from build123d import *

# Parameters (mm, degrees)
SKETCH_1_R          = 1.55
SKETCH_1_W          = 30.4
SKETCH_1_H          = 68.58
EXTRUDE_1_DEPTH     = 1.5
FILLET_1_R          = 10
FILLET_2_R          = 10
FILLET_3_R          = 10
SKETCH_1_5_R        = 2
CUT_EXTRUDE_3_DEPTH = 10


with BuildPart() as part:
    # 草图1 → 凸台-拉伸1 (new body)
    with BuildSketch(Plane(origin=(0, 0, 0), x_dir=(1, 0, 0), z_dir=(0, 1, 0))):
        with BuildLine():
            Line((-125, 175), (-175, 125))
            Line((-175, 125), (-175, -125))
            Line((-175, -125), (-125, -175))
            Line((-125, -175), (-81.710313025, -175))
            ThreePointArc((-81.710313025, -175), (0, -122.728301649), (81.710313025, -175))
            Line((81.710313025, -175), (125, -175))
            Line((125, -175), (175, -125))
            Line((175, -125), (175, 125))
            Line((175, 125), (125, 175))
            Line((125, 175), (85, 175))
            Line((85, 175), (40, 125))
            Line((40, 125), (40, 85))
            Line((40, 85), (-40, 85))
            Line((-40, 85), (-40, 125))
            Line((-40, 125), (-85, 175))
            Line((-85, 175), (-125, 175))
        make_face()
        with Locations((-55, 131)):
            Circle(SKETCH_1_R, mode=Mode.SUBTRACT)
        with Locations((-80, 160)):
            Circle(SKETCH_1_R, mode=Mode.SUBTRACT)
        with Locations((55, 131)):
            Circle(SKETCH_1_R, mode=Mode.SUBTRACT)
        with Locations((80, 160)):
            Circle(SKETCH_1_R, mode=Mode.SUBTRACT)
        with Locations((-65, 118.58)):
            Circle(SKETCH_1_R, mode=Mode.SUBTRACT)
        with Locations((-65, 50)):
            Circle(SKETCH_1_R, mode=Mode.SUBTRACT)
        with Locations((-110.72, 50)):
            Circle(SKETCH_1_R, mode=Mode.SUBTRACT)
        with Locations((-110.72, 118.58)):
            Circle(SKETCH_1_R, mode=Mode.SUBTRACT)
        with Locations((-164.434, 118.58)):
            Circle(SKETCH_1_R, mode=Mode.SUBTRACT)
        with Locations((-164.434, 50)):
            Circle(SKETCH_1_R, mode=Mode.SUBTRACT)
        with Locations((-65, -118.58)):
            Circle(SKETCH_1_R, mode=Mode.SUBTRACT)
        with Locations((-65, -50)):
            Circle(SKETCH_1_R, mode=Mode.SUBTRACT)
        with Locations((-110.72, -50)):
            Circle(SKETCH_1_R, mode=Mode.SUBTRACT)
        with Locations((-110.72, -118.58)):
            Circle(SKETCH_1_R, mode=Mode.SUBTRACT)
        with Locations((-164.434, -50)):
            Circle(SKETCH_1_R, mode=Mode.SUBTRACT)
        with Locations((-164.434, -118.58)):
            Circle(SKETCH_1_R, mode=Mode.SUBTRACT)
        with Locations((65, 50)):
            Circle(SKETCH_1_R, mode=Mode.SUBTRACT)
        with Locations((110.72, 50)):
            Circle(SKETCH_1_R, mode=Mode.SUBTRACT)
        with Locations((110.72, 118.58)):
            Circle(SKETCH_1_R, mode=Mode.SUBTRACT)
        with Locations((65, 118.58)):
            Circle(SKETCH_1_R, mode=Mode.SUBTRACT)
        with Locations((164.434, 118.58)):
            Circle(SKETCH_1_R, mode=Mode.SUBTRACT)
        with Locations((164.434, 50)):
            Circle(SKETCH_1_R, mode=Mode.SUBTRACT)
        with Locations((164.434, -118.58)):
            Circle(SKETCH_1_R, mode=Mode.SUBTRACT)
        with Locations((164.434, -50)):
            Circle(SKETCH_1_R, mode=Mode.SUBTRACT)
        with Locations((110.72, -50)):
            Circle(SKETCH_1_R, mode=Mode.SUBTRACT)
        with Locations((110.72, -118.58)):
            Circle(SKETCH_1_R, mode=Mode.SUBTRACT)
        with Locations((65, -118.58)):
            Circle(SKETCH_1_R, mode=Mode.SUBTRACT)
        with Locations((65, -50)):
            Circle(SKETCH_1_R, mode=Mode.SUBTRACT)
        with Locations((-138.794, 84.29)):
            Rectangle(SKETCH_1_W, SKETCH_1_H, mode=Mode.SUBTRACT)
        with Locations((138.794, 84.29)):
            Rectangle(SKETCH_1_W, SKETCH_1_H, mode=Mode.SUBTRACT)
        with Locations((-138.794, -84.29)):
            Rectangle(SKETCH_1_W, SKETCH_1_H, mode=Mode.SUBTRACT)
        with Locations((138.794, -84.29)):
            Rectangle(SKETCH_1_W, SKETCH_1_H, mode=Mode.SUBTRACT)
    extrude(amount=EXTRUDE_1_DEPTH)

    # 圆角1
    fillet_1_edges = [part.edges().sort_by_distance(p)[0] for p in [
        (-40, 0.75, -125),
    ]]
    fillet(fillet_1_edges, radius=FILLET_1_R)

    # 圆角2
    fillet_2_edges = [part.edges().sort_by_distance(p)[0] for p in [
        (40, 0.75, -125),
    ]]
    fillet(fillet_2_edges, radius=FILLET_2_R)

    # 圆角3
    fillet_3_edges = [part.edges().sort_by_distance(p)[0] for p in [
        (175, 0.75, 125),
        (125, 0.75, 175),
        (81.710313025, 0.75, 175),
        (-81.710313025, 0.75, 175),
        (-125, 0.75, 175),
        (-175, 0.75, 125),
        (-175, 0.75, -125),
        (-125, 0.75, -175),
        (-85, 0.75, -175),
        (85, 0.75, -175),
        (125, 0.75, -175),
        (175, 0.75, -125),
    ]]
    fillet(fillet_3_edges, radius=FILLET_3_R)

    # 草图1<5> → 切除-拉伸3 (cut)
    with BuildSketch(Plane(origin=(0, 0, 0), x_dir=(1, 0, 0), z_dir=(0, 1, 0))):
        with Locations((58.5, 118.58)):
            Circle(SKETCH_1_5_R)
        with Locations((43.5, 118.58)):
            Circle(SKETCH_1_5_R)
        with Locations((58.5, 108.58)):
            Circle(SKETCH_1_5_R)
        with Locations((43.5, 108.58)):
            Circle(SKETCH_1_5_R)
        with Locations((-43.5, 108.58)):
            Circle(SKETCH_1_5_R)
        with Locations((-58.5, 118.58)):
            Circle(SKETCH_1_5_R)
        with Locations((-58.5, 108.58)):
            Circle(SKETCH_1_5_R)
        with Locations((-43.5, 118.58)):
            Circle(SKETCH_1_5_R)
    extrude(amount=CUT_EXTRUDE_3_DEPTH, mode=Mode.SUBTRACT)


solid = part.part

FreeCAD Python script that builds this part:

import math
import FreeCAD as App
import Part
import Sketcher

V = App.Vector
Q = App.Units.Quantity


def edges_at(feature, points):
    """Names of the edges that pass closest to the given points."""
    edges = feature.Shape.Edges
    near = lambda p: min(range(len(edges)), key=lambda i: edges[i].distToShape(Part.Vertex(*p))[0])
    return sorted({f"Edge{near(p) + 1}" for p in points})


def add_polygon(sketch, points):
    """Adds a closed chain of lines whose ends are joined by coincident constraints."""
    first, n = sketch.GeometryCount, len(points)
    for a, b in zip(points, points[1:] + points[:1]):
        sketch.addGeometry(Part.LineSegment(App.Vector(*a, 0), App.Vector(*b, 0)), False)
    for i in range(n):
        sketch.addConstraint(Sketcher.Constraint("Coincident", first + i, 2, first + (i + 1) % n, 1))

doc = App.newDocument("Part")
params = doc.addObject("Spreadsheet::Sheet", "Params")
for row, (alias, value) in enumerate([
    ("sketch1_radius", "90 mm"),
    ("sketch1_diameter", "3.1 mm"),
    ("sketch1_width", "40 mm"),
    ("sketch1_width2", "80 mm"),
    ("sketch1_height", "250 mm"),
    ("pad1_length", "1.5 mm"),
    ("fillet_radius", "10 mm"),
    ("fillet2_radius", "10 mm"),
    ("fillet3_radius", "10 mm"),
    ("sketch2_diameter", "4 mm"),
    ("pocket1_length", "10 mm"),
], start=1):
    params.set(f"A{row}", alias)
    params.set(f"B{row}", "=" + value)
    params.setAlias(f"B{row}", alias)

body = doc.addObject("PartDesign::Body", "Body")

sketch1 = body.newObject("Sketcher::SketchObject", "Sketch")
sketch1.AttachmentSupport = (doc.getObject("XZ_Plane"), [""])
sketch1.MapMode = "FlatFace"
sketch1.addGeometry(Part.LineSegment(V(-125, -175, 0), V(-175, -125, 0)), False)
sketch1.addGeometry(Part.LineSegment(V(-175, -125, 0), V(-175, 125, 0)), False)
sketch1.addGeometry(Part.LineSegment(V(-175, 125, 0), V(-125, 175, 0)), False)
sketch1.addGeometry(Part.LineSegment(V(-125, 175, 0), V(-81.7, 175, 0)), False)
sketch1.addGeometry(Part.ArcOfCircle(Part.Circle(V(0, 212.7, 0), V(0, 0, 1), 90), math.radians(-155), math.radians(-25)), False)
sketch1.addGeometry(Part.LineSegment(V(81.7, 175, 0), V(125, 175, 0)), False)
sketch1.addGeometry(Part.LineSegment(V(125, 175, 0), V(175, 125, 0)), False)
sketch1.addGeometry(Part.LineSegment(V(175, 125, 0), V(175, -125, 0)), False)
sketch1.addGeometry(Part.LineSegment(V(175, -125, 0), V(125, -175, 0)), False)
sketch1.addGeometry(Part.LineSegment(V(125, -175, 0), V(85, -175, 0)), False)
sketch1.addGeometry(Part.LineSegment(V(85, -175, 0), V(40, -125, 0)), False)
sketch1.addGeometry(Part.LineSegment(V(40, -125, 0), V(40, -85, 0)), False)
sketch1.addGeometry(Part.LineSegment(V(40, -85, 0), V(-40, -85, 0)), False)
sketch1.addGeometry(Part.LineSegment(V(-40, -85, 0), V(-40, -125, 0)), False)
sketch1.addGeometry(Part.LineSegment(V(-40, -125, 0), V(-85, -175, 0)), False)
sketch1.addGeometry(Part.LineSegment(V(-85, -175, 0), V(-125, -175, 0)), False)
sketch1.addGeometry(Part.Circle(V(-164.4, 118.6, 0), V(0, 0, 1), 1.6), False)
sketch1.addGeometry(Part.Circle(V(-110.7, 118.6, 0), V(0, 0, 1), 1.6), False)
add_polygon(sketch1, [(-123.6, 118.6), (-154, 118.6), (-154, 50), (-123.6, 50)])
sketch1.addGeometry(Part.Circle(V(-164.4, 50, 0), V(0, 0, 1), 1.6), False)
sketch1.addGeometry(Part.Circle(V(-110.7, 50, 0), V(0, 0, 1), 1.6), False)
sketch1.addGeometry(Part.Circle(V(-65, 118.6, 0), V(0, 0, 1), 1.6), False)
sketch1.addGeometry(Part.Circle(V(-65, 50, 0), V(0, 0, 1), 1.6), False)
sketch1.addGeometry(Part.Circle(V(65, 118.6, 0), V(0, 0, 1), 1.6), False)
sketch1.addGeometry(Part.Circle(V(65, 50, 0), V(0, 0, 1), 1.6), False)
sketch1.addGeometry(Part.Circle(V(110.7, 118.6, 0), V(0, 0, 1), 1.6), False)
sketch1.addGeometry(Part.Circle(V(164.4, 118.6, 0), V(0, 0, 1), 1.6), False)
sketch1.addGeometry(Part.Circle(V(110.7, 50, 0), V(0, 0, 1), 1.6), False)
add_polygon(sketch1, [(154, 118.6), (123.6, 118.6), (123.6, 50), (154, 50)])
sketch1.addGeometry(Part.Circle(V(164.4, 50, 0), V(0, 0, 1), 1.6), False)
sketch1.addGeometry(Part.Circle(V(-164.4, -50, 0), V(0, 0, 1), 1.6), False)
sketch1.addGeometry(Part.Circle(V(-110.7, -50, 0), V(0, 0, 1), 1.6), False)
add_polygon(sketch1, [(-123.6, -50), (-154, -50), (-154, -118.6), (-123.6, -118.6)])
sketch1.addGeometry(Part.Circle(V(-65, -50, 0), V(0, 0, 1), 1.6), False)
sketch1.addGeometry(Part.Circle(V(-164.4, -118.6, 0), V(0, 0, 1), 1.6), False)
sketch1.addGeometry(Part.Circle(V(-110.7, -118.6, 0), V(0, 0, 1), 1.6), False)
sketch1.addGeometry(Part.Circle(V(-65, -118.6, 0), V(0, 0, 1), 1.6), False)
sketch1.addGeometry(Part.Circle(V(-55, -131, 0), V(0, 0, 1), 1.6), False)
sketch1.addGeometry(Part.Circle(V(-80, -160, 0), V(0, 0, 1), 1.6), False)
sketch1.addGeometry(Part.Circle(V(65, -50, 0), V(0, 0, 1), 1.6), False)
sketch1.addGeometry(Part.Circle(V(110.7, -50, 0), V(0, 0, 1), 1.6), False)
sketch1.addGeometry(Part.Circle(V(164.4, -50, 0), V(0, 0, 1), 1.6), False)
add_polygon(sketch1, [(154, -50), (123.6, -50), (123.6, -118.6), (154, -118.6)])
sketch1.addGeometry(Part.Circle(V(65, -118.6, 0), V(0, 0, 1), 1.6), False)
sketch1.addGeometry(Part.Circle(V(55, -131, 0), V(0, 0, 1), 1.6), False)
sketch1.addGeometry(Part.Circle(V(80, -160, 0), V(0, 0, 1), 1.6), False)
sketch1.addGeometry(Part.Circle(V(110.7, -118.6, 0), V(0, 0, 1), 1.6), False)
sketch1.addGeometry(Part.Circle(V(164.4, -118.6, 0), V(0, 0, 1), 1.6), False)
sketch1.addConstraint([
    Sketcher.Constraint("Coincident", 0, 2, 1, 1),
    Sketcher.Constraint("Coincident", 1, 2, 2, 1),
    Sketcher.Constraint("Coincident", 2, 2, 3, 1),
    Sketcher.Constraint("Coincident", 3, 2, 4, 1),
    Sketcher.Constraint("Coincident", 4, 2, 5, 1),
    Sketcher.Constraint("Coincident", 5, 2, 6, 1),
    Sketcher.Constraint("Coincident", 6, 2, 7, 1),
    Sketcher.Constraint("Coincident", 7, 2, 8, 1),
    Sketcher.Constraint("Coincident", 8, 2, 9, 1),
    Sketcher.Constraint("Coincident", 9, 2, 10, 1),
    Sketcher.Constraint("Coincident", 10, 2, 11, 1),
    Sketcher.Constraint("Coincident", 11, 2, 12, 1),
    Sketcher.Constraint("Coincident", 12, 2, 13, 1),
    Sketcher.Constraint("Coincident", 13, 2, 14, 1),
    Sketcher.Constraint("Coincident", 14, 2, 15, 1),
    Sketcher.Constraint("Coincident", 15, 2, 0, 1),
    Sketcher.Constraint("Vertical", 1),
    Sketcher.Constraint("Horizontal", 3),
    Sketcher.Constraint("Horizontal", 5),
    Sketcher.Constraint("Vertical", 7),
    Sketcher.Constraint("Horizontal", 9),
    Sketcher.Constraint("Vertical", 11),
    Sketcher.Constraint("Horizontal", 12),
    Sketcher.Constraint("Vertical", 13),
    Sketcher.Constraint("Horizontal", 15),
    Sketcher.Constraint("Horizontal", 18),
    Sketcher.Constraint("Vertical", 19),
    Sketcher.Constraint("Horizontal", 20),
    Sketcher.Constraint("Vertical", 21),
    Sketcher.Constraint("Horizontal", 31),
    Sketcher.Constraint("Vertical", 32),
    Sketcher.Constraint("Horizontal", 33),
    Sketcher.Constraint("Vertical", 34),
    Sketcher.Constraint("Horizontal", 38),
    Sketcher.Constraint("Vertical", 39),
    Sketcher.Constraint("Horizontal", 40),
    Sketcher.Constraint("Vertical", 41),
    Sketcher.Constraint("Horizontal", 51),
    Sketcher.Constraint("Vertical", 52),
    Sketcher.Constraint("Horizontal", 53),
    Sketcher.Constraint("Vertical", 54),
    Sketcher.Constraint("Equal", 16, 17),
    Sketcher.Constraint("Equal", 17, 22),
    Sketcher.Constraint("Equal", 22, 23),
    Sketcher.Constraint("Equal", 23, 24),
    Sketcher.Constraint("Equal", 24, 25),
    Sketcher.Constraint("Equal", 25, 26),
    Sketcher.Constraint("Equal", 26, 27),
    Sketcher.Constraint("Equal", 27, 28),
    Sketcher.Constraint("Equal", 28, 29),
    Sketcher.Constraint("Equal", 29, 30),
    Sketcher.Constraint("Equal", 30, 35),
    Sketcher.Constraint("Equal", 35, 36),
    Sketcher.Constraint("Equal", 36, 37),
    Sketcher.Constraint("Equal", 37, 42),
    Sketcher.Constraint("Equal", 42, 43),
    Sketcher.Constraint("Equal", 43, 44),
    Sketcher.Constraint("Equal", 44, 45),
    Sketcher.Constraint("Equal", 45, 46),
    Sketcher.Constraint("Equal", 46, 47),
    Sketcher.Constraint("Equal", 47, 48),
    Sketcher.Constraint("Equal", 48, 49),
    Sketcher.Constraint("Equal", 49, 50),
    Sketcher.Constraint("Equal", 50, 55),
    Sketcher.Constraint("Equal", 55, 56),
    Sketcher.Constraint("Equal", 56, 57),
    Sketcher.Constraint("Equal", 57, 58),
    Sketcher.Constraint("Equal", 58, 59),
    Sketcher.Constraint("Symmetric", 35, 3, 36, 3, -1, 1),
    Sketcher.Constraint("Symmetric", 30, 3, 37, 3, -1, 1),
    Sketcher.Constraint("Symmetric", 27, 3, 42, 3, -1, 1),
    Sketcher.Constraint("Symmetric", 29, 3, 43, 3, -1, 1),
    Sketcher.Constraint("Symmetric", 28, 3, 44, 3, -1, 1),
    Sketcher.Constraint("Symmetric", 26, 3, 45, 3, -1, 1),
    Sketcher.Constraint("Symmetric", 25, 3, 48, 3, -1, 1),
    Sketcher.Constraint("Symmetric", 23, 3, 49, 3, -1, 1),
    Sketcher.Constraint("Symmetric", 22, 3, 50, 3, -1, 1),
    Sketcher.Constraint("Symmetric", 24, 3, 55, 3, -1, 1),
    Sketcher.Constraint("Symmetric", 17, 3, 58, 3, -1, 1),
    Sketcher.Constraint("Symmetric", 16, 3, 59, 3, -1, 1),
    Sketcher.Constraint("Symmetric", 0, 2, 6, 2, -1, 1),
    Sketcher.Constraint("Symmetric", 2, 2, 8, 2, -1, 1),
    Sketcher.Constraint("Symmetric", 5, 2, 15, 2, -1, 1),
    Sketcher.Constraint("Symmetric", 33, 2, 38, 2, -1, 1),
    Sketcher.Constraint("Symmetric", 31, 2, 40, 2, -1, 1),
    Sketcher.Constraint("Symmetric", 20, 2, 51, 2, -1, 1),
    Sketcher.Constraint("Symmetric", 18, 2, 53, 2, -1, 1),
    Sketcher.Constraint("Symmetric", 24, 3, 26, 3, -2),
    Sketcher.Constraint("Symmetric", 25, 3, 27, 3, -2),
    Sketcher.Constraint("Symmetric", 17, 3, 28, 3, -2),
    Sketcher.Constraint("Symmetric", 16, 3, 29, 3, -2),
    Sketcher.Constraint("Symmetric", 23, 3, 30, 3, -2),
    Sketcher.Constraint("Symmetric", 22, 3, 35, 3, -2),
    Sketcher.Constraint("Symmetric", 46, 3, 56, 3, -2),
    Sketcher.Constraint("Symmetric", 47, 3, 57, 3, -2),
    Sketcher.Constraint("Symmetric", 3, 2, 4, 2, -2),
    Sketcher.Constraint("Symmetric", 10, 2, 13, 2, -2),
    Sketcher.Constraint("Symmetric", 21, 2, 31, 2, -2),
    Sketcher.Constraint("Symmetric", 19, 2, 33, 2, -2),
    Sketcher.Constraint("Perpendicular", 0, 2),
    Sketcher.Constraint("Perpendicular", 6, 8),
    Sketcher.Constraint("Horizontal", 16, 3, 17, 3),
    Sketcher.Constraint("Horizontal", 22, 3, 23, 3),
    Sketcher.Constraint("Horizontal", 17, 3, 24, 3),
    Sketcher.Constraint("Horizontal", 23, 3, 25, 3),
    Sketcher.Constraint("Horizontal", 1, 2, 6, 2),
    Sketcher.Constraint("Horizontal", 7, 2, 10, 2),
    Sketcher.Constraint("Horizontal", 29, 3, 18, 2),
    Sketcher.Constraint("Horizontal", 35, 3, 19, 2),
    Sketcher.Constraint("Vertical", 16, 3, 22, 3),
    Sketcher.Constraint("Vertical", 17, 3, 23, 3),
    Sketcher.Constraint("Vertical", 24, 3, 25, 3),
    Sketcher.Constraint("Vertical", 5, 2, 8, 2),
    Sketcher.Constraint("Equal", 9, 15),
    Sketcher.Constraint("Equal", 15, 11),
    Sketcher.Constraint("Radius", 4, Q("90 mm")),
    Sketcher.Constraint("Diameter", 16, Q("3.1 mm")),
    Sketcher.Constraint("DistanceX", 9, 2, 9, 1, Q("40 mm")),
    Sketcher.Constraint("DistanceX", 12, 2, 12, 1, Q("80 mm")),
    Sketcher.Constraint("DistanceY", 1, 1, 1, 2, Q("250 mm")),
    Sketcher.Constraint("DistanceX", 18, 2, 18, 1, Q("30.4 mm")),
    Sketcher.Constraint("DistanceY", -1, 1, 22, 3, Q("50 mm")),
    Sketcher.Constraint("DistanceX", 24, 3, -1, 1, Q("65 mm")),
    Sketcher.Constraint("DistanceX", 46, 3, -1, 1, Q("55 mm")),
    Sketcher.Constraint("DistanceY", 46, 3, -1, 1, Q("131 mm")),
    Sketcher.Constraint("DistanceX", 47, 3, -1, 1, Q("80 mm")),
    Sketcher.Constraint("DistanceY", 47, 3, -1, 1, Q("160 mm")),
    Sketcher.Constraint("DistanceX", 0, 2, -1, 1, Q("175 mm")),
    Sketcher.Constraint("DistanceX", 2, 2, -1, 1, Q("125 mm")),
    Sketcher.Constraint("DistanceY", 19, 2, 19, 1, Q("68.58 mm")),
    Sketcher.Constraint("DistanceX", 17, 3, -1, 1, Q("110.72 mm")),
    Sketcher.Constraint("DistanceX", 16, 3, -1, 1, Q("164.434 mm")),
    Sketcher.Constraint("DistanceX", 18, 2, -1, 1, Q("153.994 mm")),
    Sketcher.Constraint("DistanceY", -1, 1, 4, 3, Q("212.728302 mm")),
])
sketch1.setExpression("Constraints[131]", "Params.sketch1_radius")
sketch1.setExpression("Constraints[132]", "Params.sketch1_diameter")
sketch1.setExpression("Constraints[133]", "Params.sketch1_width")
sketch1.setExpression("Constraints[134]", "Params.sketch1_width2")
sketch1.setExpression("Constraints[135]", "Params.sketch1_height")
pad1 = body.newObject("PartDesign::Pad", "Pad")
pad1.Profile = sketch1
pad1.setExpression("Length", "Params.pad1_length")
pad1.Reversed = True
doc.recompute()

fillet = body.newObject("PartDesign::Fillet", "Fillet")
fillet.Base = (pad1, edges_at(pad1, [(-40, 0.75, -125)]))
fillet.setExpression("Radius", "Params.fillet_radius")
doc.recompute()

fillet2 = body.newObject("PartDesign::Fillet", "Fillet001")
fillet2.Base = (fillet, edges_at(fillet, [(40, 0.75, -125)]))
fillet2.setExpression("Radius", "Params.fillet2_radius")
doc.recompute()

fillet3 = body.newObject("PartDesign::Fillet", "Fillet002")
fillet3.Base = (fillet2, edges_at(fillet2, [
    (175, 0.75, 125),
    (125, 0.75, 175),
    (81.71, 0.75, 175),
    (-81.71, 0.75, 175),
    (-125, 0.75, 175),
    (-175, 0.75, 125),
    (-175, 0.75, -125),
    (-125, 0.75, -175),
    (-85, 0.75, -175),
    (85, 0.75, -175),
    (125, 0.75, -175),
    (175, 0.75, -125),
]))
fillet3.setExpression("Radius", "Params.fillet3_radius")

sketch2 = body.newObject("Sketcher::SketchObject", "Sketch001")
sketch2.AttachmentSupport = (doc.getObject("XZ_Plane"), [""])
sketch2.MapMode = "FlatFace"
sketch2.addGeometry([
    Part.Circle(V(58.5, -118.6, 0), V(0, 0, 1), 2),
    Part.Circle(V(43.5, -118.6, 0), V(0, 0, 1), 2),
    Part.Circle(V(58.5, -108.6, 0), V(0, 0, 1), 2),
    Part.Circle(V(43.5, -108.6, 0), V(0, 0, 1), 2),
    Part.Circle(V(-43.5, -108.6, 0), V(0, 0, 1), 2),
    Part.Circle(V(-58.5, -118.6, 0), V(0, 0, 1), 2),
    Part.Circle(V(-58.5, -108.6, 0), V(0, 0, 1), 2),
    Part.Circle(V(-43.5, -118.6, 0), V(0, 0, 1), 2),
], False)
sketch2.addConstraint([
    Sketcher.Constraint("Equal", 0, 1),
    Sketcher.Constraint("Equal", 1, 2),
    Sketcher.Constraint("Equal", 2, 3),
    Sketcher.Constraint("Equal", 3, 4),
    Sketcher.Constraint("Equal", 4, 5),
    Sketcher.Constraint("Equal", 5, 6),
    Sketcher.Constraint("Equal", 6, 7),
    Sketcher.Constraint("Symmetric", 3, 3, 4, 3, -2),
    Sketcher.Constraint("Symmetric", 0, 3, 5, 3, -2),
    Sketcher.Constraint("Symmetric", 2, 3, 6, 3, -2),
    Sketcher.Constraint("Symmetric", 1, 3, 7, 3, -2),
    Sketcher.Constraint("Horizontal", 0, 3, 1, 3),
    Sketcher.Constraint("Horizontal", 2, 3, 3, 3),
    Sketcher.Constraint("Vertical", 0, 3, 2, 3),
    Sketcher.Constraint("Vertical", 1, 3, 3, 3),
    Sketcher.Constraint("Diameter", 0, Q("4 mm")),
    Sketcher.Constraint("DistanceX", 1, 3, 0, 3, Q("15 mm")),
    Sketcher.Constraint("DistanceY", 0, 3, 2, 3, Q("10 mm")),
    Sketcher.Constraint("DistanceX", 4, 3, 3, 3, Q("87 mm")),
    Sketcher.Constraint("DistanceY", 0, 3, -1, 1, Q("118.58 mm")),
])
sketch2.setExpression("Constraints[15]", "Params.sketch2_diameter")
pocket1 = body.newObject("PartDesign::Pocket", "Pocket")
pocket1.Profile = sketch2
pocket1.setExpression("Length", "Params.pocket1_length")

doc.recompute()
